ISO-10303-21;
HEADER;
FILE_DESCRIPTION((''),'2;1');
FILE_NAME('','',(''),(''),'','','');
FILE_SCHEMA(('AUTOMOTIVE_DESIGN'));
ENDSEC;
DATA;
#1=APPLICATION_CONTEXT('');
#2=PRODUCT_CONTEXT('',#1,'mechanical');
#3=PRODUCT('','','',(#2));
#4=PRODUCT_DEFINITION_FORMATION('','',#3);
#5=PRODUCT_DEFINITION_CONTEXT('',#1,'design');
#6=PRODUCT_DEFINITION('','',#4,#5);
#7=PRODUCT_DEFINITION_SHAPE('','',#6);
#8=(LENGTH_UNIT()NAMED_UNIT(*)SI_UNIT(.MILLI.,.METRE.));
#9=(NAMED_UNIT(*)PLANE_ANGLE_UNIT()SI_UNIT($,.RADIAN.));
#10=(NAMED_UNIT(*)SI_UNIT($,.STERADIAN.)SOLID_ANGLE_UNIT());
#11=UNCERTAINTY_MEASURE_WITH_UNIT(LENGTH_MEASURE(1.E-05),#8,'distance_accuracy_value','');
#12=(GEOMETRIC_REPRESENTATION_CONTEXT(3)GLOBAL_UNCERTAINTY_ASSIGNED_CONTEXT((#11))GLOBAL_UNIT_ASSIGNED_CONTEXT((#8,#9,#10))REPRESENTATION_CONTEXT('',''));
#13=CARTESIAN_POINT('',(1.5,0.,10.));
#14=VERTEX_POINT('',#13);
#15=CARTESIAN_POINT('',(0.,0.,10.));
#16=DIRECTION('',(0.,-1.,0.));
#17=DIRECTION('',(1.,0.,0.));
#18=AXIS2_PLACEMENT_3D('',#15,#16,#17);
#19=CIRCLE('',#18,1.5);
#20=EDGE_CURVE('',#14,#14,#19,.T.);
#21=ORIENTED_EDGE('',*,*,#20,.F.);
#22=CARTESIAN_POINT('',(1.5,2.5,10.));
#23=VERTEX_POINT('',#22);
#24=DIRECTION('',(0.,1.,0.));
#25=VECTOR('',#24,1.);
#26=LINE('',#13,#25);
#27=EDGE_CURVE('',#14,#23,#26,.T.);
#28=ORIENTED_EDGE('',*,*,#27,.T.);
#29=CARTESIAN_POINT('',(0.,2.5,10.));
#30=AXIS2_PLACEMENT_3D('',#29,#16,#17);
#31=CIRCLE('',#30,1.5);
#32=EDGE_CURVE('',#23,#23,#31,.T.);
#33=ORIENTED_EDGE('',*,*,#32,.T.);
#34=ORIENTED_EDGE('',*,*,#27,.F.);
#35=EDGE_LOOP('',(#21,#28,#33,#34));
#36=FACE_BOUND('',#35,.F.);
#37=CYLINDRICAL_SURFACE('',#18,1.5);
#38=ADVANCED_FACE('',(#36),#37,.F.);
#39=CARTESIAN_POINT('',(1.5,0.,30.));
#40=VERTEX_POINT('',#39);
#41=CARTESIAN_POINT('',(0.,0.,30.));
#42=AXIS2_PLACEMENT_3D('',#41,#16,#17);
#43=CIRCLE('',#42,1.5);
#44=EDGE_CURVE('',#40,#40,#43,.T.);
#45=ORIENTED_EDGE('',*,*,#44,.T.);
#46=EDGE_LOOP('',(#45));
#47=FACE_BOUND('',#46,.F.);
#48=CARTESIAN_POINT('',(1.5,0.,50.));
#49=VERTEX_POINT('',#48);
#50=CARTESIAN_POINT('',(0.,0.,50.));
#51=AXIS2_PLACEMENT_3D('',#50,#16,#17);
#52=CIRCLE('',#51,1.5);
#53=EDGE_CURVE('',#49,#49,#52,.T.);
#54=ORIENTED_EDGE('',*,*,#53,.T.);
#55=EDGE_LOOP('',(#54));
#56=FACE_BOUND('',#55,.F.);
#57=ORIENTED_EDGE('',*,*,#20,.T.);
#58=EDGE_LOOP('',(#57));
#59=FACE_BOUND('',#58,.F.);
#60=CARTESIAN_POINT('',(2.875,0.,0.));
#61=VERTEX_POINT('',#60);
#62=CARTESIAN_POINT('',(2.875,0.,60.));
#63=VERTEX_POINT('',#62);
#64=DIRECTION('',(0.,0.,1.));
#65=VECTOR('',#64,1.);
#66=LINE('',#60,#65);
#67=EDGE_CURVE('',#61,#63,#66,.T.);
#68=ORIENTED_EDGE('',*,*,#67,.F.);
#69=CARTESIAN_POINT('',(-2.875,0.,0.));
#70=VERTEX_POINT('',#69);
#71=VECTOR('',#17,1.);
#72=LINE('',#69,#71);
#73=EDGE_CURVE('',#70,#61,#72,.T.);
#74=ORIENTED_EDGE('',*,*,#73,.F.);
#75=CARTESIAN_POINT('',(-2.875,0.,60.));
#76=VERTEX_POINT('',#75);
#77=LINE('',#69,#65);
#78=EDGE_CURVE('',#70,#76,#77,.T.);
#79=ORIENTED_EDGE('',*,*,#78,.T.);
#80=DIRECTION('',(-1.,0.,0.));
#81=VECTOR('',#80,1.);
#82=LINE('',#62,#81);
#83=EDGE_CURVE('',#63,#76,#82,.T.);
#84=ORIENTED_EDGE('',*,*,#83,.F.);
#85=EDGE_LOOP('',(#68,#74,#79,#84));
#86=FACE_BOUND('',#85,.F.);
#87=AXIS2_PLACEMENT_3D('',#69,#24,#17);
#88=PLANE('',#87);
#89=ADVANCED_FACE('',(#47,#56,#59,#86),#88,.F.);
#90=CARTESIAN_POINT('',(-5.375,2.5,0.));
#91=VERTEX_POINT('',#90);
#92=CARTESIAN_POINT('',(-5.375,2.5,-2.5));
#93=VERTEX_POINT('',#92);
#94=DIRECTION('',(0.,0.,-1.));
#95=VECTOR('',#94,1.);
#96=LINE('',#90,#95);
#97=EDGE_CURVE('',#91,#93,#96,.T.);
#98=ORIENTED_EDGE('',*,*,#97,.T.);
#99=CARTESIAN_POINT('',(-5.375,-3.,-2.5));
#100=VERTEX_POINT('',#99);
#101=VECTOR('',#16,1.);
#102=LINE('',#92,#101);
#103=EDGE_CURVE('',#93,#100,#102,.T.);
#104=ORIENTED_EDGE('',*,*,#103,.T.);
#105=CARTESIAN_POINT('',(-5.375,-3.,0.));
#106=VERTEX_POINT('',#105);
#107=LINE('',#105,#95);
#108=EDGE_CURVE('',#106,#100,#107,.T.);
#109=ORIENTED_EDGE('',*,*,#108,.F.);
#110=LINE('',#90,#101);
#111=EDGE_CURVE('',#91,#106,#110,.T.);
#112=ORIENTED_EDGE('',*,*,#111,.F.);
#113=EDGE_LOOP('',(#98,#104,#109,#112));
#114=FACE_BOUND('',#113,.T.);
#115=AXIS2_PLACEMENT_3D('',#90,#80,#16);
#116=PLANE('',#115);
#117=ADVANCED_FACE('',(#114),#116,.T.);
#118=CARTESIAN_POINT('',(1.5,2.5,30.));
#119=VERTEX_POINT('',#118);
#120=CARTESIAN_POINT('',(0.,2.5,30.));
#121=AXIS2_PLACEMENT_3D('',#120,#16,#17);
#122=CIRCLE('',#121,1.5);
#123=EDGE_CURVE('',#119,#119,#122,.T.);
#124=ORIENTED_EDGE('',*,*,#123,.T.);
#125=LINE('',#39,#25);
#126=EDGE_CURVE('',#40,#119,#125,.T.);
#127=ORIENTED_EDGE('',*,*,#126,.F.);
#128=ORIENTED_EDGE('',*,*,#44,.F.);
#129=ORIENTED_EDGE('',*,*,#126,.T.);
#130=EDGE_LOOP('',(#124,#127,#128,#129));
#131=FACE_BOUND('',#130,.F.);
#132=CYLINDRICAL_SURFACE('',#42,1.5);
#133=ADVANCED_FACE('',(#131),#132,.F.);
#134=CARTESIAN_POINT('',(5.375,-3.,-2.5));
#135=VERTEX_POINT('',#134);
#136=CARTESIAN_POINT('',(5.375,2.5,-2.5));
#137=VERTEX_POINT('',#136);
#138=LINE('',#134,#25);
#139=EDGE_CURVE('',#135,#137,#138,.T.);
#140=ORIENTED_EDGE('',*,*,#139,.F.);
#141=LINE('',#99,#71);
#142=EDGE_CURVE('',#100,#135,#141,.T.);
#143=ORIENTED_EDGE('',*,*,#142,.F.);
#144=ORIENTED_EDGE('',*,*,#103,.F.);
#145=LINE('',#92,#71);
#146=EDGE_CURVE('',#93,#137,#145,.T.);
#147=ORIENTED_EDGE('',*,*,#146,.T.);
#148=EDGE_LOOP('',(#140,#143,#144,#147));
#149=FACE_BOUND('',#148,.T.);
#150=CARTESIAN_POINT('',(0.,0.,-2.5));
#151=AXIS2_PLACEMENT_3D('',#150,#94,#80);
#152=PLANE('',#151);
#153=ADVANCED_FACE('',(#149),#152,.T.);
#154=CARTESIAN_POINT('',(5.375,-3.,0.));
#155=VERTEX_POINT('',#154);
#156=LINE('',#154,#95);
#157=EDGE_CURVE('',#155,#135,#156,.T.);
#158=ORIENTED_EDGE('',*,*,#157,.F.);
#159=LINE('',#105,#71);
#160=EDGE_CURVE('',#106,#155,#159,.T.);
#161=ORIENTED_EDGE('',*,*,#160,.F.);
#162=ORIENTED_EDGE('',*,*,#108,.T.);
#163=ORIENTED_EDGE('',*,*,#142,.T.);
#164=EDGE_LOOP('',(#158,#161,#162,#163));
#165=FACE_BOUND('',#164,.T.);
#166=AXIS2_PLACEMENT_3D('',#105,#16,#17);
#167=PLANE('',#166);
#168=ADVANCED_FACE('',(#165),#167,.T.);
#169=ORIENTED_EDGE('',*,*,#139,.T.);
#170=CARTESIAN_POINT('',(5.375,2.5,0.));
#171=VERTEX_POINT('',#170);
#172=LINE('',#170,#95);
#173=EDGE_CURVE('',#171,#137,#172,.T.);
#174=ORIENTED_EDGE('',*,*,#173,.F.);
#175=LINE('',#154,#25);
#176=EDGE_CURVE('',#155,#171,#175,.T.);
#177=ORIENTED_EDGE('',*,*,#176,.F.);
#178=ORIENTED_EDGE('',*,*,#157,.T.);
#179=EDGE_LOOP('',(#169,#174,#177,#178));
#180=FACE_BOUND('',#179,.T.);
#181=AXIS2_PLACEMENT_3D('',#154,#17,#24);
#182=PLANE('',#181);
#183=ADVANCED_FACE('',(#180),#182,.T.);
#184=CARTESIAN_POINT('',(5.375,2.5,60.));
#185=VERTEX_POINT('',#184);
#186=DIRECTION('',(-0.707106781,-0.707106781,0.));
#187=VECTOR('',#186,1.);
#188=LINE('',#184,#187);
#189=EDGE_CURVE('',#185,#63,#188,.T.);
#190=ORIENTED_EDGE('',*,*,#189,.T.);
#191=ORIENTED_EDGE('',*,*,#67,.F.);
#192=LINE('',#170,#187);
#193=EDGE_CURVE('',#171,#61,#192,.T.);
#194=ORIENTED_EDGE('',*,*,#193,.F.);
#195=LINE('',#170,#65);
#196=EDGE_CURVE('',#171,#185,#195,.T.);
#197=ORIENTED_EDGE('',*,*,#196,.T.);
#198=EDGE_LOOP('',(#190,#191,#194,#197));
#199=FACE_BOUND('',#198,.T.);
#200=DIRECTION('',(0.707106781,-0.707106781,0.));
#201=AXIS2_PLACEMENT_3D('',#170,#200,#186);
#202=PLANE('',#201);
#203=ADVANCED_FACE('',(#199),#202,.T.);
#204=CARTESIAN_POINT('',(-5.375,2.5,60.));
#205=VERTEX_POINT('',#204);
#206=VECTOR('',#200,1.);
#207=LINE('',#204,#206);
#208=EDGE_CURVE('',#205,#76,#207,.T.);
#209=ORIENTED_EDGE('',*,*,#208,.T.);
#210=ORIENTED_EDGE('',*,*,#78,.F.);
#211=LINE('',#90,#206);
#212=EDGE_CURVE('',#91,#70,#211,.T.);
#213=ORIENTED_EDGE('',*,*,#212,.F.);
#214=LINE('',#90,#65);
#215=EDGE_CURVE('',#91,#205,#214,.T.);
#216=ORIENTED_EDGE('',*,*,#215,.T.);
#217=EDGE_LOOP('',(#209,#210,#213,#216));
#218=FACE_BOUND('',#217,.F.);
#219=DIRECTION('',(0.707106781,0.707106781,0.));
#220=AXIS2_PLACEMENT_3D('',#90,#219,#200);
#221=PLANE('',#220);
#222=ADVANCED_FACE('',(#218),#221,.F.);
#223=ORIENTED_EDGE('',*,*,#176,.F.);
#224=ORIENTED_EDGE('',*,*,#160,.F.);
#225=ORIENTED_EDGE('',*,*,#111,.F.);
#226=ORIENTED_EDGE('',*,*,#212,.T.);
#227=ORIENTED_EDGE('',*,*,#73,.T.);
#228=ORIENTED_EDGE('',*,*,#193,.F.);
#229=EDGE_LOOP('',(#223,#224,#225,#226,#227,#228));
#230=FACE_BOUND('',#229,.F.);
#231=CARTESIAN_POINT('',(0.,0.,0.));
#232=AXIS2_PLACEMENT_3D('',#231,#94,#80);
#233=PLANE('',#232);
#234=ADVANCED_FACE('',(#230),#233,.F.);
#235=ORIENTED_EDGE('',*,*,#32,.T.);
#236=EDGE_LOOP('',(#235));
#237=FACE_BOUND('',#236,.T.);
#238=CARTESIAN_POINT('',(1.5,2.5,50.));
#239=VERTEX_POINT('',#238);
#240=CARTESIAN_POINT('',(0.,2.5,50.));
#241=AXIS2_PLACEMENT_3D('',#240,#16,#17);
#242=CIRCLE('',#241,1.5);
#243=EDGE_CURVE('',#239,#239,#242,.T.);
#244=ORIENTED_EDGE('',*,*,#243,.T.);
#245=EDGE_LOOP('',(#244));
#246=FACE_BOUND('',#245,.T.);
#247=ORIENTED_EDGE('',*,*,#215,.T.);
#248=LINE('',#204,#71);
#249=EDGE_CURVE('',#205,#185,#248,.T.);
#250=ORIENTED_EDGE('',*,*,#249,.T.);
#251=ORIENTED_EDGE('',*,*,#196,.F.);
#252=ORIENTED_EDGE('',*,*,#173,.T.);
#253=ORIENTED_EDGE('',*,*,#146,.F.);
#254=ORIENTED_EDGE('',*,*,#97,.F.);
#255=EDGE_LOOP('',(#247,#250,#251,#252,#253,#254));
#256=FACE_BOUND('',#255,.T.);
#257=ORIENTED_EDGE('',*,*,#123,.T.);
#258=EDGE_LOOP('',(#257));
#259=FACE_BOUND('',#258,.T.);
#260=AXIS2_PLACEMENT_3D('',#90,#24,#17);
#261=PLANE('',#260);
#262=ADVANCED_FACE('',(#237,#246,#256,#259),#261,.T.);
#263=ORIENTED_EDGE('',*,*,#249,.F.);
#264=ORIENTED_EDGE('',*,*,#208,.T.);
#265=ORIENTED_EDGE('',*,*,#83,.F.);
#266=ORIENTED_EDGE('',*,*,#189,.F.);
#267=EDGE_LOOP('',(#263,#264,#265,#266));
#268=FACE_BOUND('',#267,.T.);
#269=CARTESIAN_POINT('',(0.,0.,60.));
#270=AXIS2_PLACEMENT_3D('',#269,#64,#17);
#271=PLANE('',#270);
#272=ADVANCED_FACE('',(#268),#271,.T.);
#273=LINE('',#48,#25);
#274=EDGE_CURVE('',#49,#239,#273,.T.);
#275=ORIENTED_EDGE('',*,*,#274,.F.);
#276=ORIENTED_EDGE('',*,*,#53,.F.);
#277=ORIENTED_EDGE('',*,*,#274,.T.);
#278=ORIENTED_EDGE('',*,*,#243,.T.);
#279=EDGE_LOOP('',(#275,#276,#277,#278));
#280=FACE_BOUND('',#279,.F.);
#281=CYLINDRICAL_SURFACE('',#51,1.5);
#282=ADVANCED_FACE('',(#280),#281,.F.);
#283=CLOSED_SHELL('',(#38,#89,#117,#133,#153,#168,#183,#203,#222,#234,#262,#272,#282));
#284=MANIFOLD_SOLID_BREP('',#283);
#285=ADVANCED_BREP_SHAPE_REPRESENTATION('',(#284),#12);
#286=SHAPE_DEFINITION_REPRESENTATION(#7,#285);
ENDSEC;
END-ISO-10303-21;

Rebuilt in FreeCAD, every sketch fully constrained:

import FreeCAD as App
import Part
import Sketcher
from FreeCAD import Vector

doc = App.newDocument("Part")
body = doc.addObject("PartDesign::Body", "Body")

sketch1 = body.newObject("Sketcher::SketchObject", "Sketch")
sketch1.AttachmentSupport = (doc.getObject("XY_Plane"), [""])
sketch1.MapMode = "FlatFace"
sketch1.addGeometry([
    Part.LineSegment(Vector(-5.375, 2.5, 0), Vector(-2.875, 0, 0)),
    Part.LineSegment(Vector(-2.875, 0, 0), Vector(2.875, 0, 0)),
    Part.LineSegment(Vector(2.875, 0, 0), Vector(5.375, 2.5, 0)),
    Part.LineSegment(Vector(5.375, 2.5, 0), Vector(-5.375, 2.5, 0)),
], False)
sketch1.addConstraint([
    Sketcher.Constraint("Coincident", 0, 2, 1, 1),
    Sketcher.Constraint("Coincident", 1, 2, 2, 1),
    Sketcher.Constraint("Coincident", 2, 2, 3, 1),
    Sketcher.Constraint("Coincident", 3, 2, 0, 1),
    Sketcher.Constraint("Horizontal", 1),
    Sketcher.Constraint("Horizontal", 3),
    Sketcher.Constraint("Symmetric", 0, 2, 1, 2, -1, 1),
    Sketcher.Constraint("Perpendicular", 0, 2),
    Sketcher.Constraint("Equal", 0, 2),
    Sketcher.Constraint("DistanceX", 1, 1, 1, 2, 5.75),
    Sketcher.Constraint("DistanceX", 3, 2, 3, 1, 10.75),
])
pad1 = body.newObject("PartDesign::Pad", "Pad")
pad1.Profile = sketch1
pad1.Length = 60

sketch2 = body.newObject("Sketcher::SketchObject", "Sketch001")
sketch2.AttachmentSupport = (doc.getObject("XY_Plane"), [""])
sketch2.MapMode = "FlatFace"
sketch2.addGeometry([
    Part.LineSegment(Vector(-5.375, 2.5, 0), Vector(5.375, 2.5, 0)),
    Part.LineSegment(Vector(5.375, 2.5, 0), Vector(5.375, -3, 0)),
    Part.LineSegment(Vector(5.375, -3, 0), Vector(-5.375, -3, 0)),
    Part.LineSegment(Vector(-5.375, -3, 0), Vector(-5.375, 2.5, 0)),
], False)
sketch2.addConstraint([
    Sketcher.Constraint("Coincident", 0, 2, 1, 1),
    Sketcher.Constraint("Coincident", 1, 2, 2, 1),
    Sketcher.Constraint("Coincident", 2, 2, 3, 1),
    Sketcher.Constraint("Coincident", 3, 2, 0, 1),
    Sketcher.Constraint("Horizontal", 0),
    Sketcher.Constraint("Vertical", 1),
    Sketcher.Constraint("Horizontal", 2),
    Sketcher.Constraint("Vertical", 3),
    Sketcher.Constraint("DistanceY", 1, 2, 1, 1, 5.5),
    Sketcher.Constraint("DistanceX", 0, 1, 0, 2, 10.75),
    Sketcher.Constraint("DistanceY", 1, 2, -1, 1, 3.0),
    Sketcher.Constraint("DistanceX", -1, 1, 0, 2, 5.375),
])
pad2 = body.newObject("PartDesign::Pad", "Pad001")
pad2.Profile = sketch2
pad2.Length = 2.5
pad2.Reversed = True

sketch3 = body.newObject("Sketcher::SketchObject", "Sketch002")
sketch3.AttachmentSupport = (doc.getObject("XZ_Plane"), [""])
sketch3.MapMode = "FlatFace"
sketch3.addGeometry([
    Part.Circle(Vector(0, 10, 0), Vector(0, 0, 1), 1.5),
    Part.Circle(Vector(0, 30, 0), Vector(0, 0, 1), 1.5),
    Part.Circle(Vector(0, 50, 0), Vector(0, 0, 1), 1.5),
], False)
sketch3.addConstraint([
    Sketcher.Constraint("Equal", 0, 1),
    Sketcher.Constraint("Equal", 1, 2),
    Sketcher.Constraint("PointOnObject", 0, 3, -2),
    Sketcher.Constraint("PointOnObject", 1, 3, -2),
    Sketcher.Constraint("PointOnObject", 2, 3, -2),
    Sketcher.Constraint("Diameter", 0, 3.0),
    Sketcher.Constraint("DistanceY", -1, 1, 0, 3, 10.0),
    Sketcher.Constraint("DistanceY", -1, 1, 1, 3, 30.0),
    Sketcher.Constraint("DistanceY", 1, 3, 2, 3, 20.0),
])
pocket1 = body.newObject("PartDesign::Pocket", "Pocket")
pocket1.Profile = sketch3
pocket1.Type = "ThroughAll"

doc.recompute()
